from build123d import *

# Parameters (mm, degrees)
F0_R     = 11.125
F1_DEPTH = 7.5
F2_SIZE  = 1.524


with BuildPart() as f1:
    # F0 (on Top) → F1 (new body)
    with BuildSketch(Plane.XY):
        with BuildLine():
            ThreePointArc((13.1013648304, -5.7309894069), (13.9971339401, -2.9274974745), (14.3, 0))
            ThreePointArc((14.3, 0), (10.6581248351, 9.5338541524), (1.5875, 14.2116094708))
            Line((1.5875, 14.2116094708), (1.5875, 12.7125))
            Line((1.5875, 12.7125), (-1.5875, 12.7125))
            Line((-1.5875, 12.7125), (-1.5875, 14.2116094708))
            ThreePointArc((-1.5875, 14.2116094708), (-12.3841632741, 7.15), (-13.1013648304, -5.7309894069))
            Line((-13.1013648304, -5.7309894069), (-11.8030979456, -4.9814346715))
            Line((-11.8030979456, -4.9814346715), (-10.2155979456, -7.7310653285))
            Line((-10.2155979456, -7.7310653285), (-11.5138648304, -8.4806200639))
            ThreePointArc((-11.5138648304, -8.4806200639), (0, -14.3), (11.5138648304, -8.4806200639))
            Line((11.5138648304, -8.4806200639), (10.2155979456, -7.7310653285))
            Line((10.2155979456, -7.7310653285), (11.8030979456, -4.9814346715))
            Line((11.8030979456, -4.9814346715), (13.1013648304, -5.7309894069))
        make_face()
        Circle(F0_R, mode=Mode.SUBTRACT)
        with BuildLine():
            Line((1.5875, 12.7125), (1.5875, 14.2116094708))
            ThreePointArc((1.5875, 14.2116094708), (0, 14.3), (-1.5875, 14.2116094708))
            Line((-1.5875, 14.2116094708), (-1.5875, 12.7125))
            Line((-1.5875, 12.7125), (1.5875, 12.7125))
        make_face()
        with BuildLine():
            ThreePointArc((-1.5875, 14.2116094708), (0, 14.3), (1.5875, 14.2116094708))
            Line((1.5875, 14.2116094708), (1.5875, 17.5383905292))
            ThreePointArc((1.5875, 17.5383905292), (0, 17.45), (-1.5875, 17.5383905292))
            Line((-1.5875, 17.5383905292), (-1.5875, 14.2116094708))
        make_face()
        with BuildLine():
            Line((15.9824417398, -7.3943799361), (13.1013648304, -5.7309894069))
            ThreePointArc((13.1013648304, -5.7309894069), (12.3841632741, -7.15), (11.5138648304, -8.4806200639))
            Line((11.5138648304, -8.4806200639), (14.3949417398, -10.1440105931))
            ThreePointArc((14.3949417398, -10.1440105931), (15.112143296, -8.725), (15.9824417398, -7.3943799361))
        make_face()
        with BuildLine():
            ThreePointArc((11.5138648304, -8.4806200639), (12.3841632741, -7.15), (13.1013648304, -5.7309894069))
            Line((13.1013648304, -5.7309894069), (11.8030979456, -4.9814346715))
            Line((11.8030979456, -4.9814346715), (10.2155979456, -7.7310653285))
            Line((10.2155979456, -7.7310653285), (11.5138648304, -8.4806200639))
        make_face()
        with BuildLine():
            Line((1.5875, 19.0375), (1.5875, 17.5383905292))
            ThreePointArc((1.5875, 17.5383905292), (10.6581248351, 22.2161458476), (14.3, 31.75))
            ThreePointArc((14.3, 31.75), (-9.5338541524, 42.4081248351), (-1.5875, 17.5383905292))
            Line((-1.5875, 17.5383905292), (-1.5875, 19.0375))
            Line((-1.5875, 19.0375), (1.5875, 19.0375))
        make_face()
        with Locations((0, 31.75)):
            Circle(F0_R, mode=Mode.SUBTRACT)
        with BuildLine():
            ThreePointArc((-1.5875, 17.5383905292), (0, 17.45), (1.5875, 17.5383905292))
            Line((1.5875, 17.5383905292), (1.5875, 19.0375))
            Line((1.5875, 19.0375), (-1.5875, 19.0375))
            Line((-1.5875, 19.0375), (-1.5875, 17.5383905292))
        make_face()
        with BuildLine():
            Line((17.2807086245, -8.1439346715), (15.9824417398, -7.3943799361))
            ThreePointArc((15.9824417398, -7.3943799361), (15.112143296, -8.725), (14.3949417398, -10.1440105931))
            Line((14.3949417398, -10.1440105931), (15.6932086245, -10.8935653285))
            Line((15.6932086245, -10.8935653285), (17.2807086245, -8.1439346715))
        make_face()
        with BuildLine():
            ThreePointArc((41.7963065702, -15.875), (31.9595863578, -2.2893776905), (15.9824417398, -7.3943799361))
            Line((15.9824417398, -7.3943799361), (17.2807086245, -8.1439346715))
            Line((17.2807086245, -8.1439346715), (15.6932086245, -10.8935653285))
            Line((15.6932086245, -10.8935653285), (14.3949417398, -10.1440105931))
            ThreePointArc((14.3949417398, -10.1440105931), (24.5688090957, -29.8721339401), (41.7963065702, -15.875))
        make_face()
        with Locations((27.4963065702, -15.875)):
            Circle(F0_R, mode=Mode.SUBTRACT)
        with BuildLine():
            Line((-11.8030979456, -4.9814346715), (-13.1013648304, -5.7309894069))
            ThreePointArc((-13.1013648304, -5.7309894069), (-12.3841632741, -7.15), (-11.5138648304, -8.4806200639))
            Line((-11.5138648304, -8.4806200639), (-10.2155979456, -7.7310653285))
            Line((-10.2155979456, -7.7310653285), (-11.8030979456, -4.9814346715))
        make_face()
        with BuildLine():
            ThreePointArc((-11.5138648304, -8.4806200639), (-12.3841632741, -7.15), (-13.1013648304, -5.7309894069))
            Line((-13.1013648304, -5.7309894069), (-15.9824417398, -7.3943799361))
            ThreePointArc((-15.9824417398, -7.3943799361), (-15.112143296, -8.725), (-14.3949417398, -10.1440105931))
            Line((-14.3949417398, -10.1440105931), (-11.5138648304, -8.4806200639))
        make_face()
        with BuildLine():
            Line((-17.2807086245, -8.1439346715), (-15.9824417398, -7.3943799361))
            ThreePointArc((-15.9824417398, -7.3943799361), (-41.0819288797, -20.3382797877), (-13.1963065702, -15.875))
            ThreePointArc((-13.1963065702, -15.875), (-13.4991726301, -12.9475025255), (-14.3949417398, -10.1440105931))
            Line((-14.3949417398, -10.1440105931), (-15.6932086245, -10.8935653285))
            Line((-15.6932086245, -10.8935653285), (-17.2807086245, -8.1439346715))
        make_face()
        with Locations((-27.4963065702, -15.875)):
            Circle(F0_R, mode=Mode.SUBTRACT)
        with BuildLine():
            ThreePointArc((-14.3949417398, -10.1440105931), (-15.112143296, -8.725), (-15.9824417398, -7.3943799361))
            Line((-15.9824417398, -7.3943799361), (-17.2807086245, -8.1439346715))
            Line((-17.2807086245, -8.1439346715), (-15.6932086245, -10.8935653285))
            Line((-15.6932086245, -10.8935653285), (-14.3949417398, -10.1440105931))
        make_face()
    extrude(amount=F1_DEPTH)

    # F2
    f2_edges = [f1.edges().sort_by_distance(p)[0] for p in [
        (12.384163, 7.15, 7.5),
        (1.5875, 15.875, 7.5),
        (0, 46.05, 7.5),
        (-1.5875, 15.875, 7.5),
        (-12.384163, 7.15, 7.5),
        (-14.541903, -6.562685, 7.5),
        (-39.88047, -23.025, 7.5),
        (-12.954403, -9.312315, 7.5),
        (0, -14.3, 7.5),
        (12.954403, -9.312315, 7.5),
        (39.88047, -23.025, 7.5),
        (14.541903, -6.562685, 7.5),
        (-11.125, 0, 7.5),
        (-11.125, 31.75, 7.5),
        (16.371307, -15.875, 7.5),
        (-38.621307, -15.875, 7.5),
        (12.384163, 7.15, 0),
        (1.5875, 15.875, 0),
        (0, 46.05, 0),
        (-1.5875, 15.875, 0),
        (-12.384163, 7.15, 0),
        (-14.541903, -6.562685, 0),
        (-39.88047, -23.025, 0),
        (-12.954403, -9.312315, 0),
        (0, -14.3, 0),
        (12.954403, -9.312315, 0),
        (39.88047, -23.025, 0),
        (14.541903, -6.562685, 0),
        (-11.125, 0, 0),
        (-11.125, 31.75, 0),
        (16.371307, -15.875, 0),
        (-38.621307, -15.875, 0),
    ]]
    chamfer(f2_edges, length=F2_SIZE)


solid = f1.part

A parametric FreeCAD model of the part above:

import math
import FreeCAD as App
import Part
import Sketcher
Q = App.Units.Quantity


def edges_at(feature, points):
    """Names of the edges that pass closest to the given points."""
    edges = feature.Shape.Edges
    near = lambda p: min(range(len(edges)), key=lambda i: edges[i].distToShape(Part.Vertex(*p))[0])
    return sorted({f"Edge{near(p) + 1}" for p in points})

doc = App.newDocument("Part")
body = doc.addObject("PartDesign::Body", "Body")

sketch1 = body.newObject("Sketcher::SketchObject", "Sketch")
sketch1.AttachmentSupport = (doc.getObject("XY_Plane"), [""])
sketch1.MapMode = "FlatFace"
sketch1.addGeometry(Part.ArcOfCircle(Part.Circle(App.Vector(0, 0, 0), App.Vector(0, 0, 1), 14.3), math.radians(-24), math.radians(0)), False)
sketch1.addGeometry(Part.ArcOfCircle(Part.Circle(App.Vector(0, 0, 0), App.Vector(0, 0, 1), 14.3), math.radians(0), math.radians(84)), False)
sketch1.addGeometry(Part.LineSegment(App.Vector(1.6, 14.2, 0), App.Vector(1.6, 17.5, 0)), False)
sketch1.addGeometry(Part.ArcOfCircle(Part.Circle(App.Vector(0, 31.8, 0), App.Vector(0, 0, 1), 14.3), math.radians(-84), math.radians(0)), False)
sketch1.addGeometry(Part.ArcOfCircle(Part.Circle(App.Vector(0, 31.8, 0), App.Vector(0, 0, 1), 14.3), math.radians(0), math.radians(264)), False)
sketch1.addGeometry(Part.LineSegment(App.Vector(-1.6, 17.5, 0), App.Vector(-1.6, 14.2, 0)), False)
sketch1.addGeometry(Part.ArcOfCircle(Part.Circle(App.Vector(0, 0, 0), App.Vector(0, 0, 1), 14.3), math.radians(96), math.radians(204)), False)
sketch1.addGeometry(Part.LineSegment(App.Vector(-13.1, -5.7, 0), App.Vector(-16, -7.4, 0)), False)
sketch1.addGeometry(Part.ArcOfCircle(Part.Circle(App.Vector(-27.5, -15.9, 0), App.Vector(0, 0, 1), 14.3), math.radians(36), math.radians(360)), False)
sketch1.addGeometry(Part.ArcOfCircle(Part.Circle(App.Vector(-27.5, -15.9, 0), App.Vector(0, 0, 1), 14.3), math.radians(0), math.radians(24)), False)
sketch1.addGeometry(Part.LineSegment(App.Vector(-14.4, -10.1, 0), App.Vector(-11.5, -8.5, 0)), False)
sketch1.addGeometry(Part.ArcOfCircle(Part.Circle(App.Vector(0, 0, 0), App.Vector(0, 0, 1), 14.3), math.radians(-144), math.radians(-36)), False)
sketch1.addGeometry(Part.LineSegment(App.Vector(11.5, -8.5, 0), App.Vector(14.4, -10.1, 0)), False)
sketch1.addGeometry(Part.ArcOfCircle(Part.Circle(App.Vector(27.5, -15.9, 0), App.Vector(0, 0, 1), 14.3), math.radians(156), math.radians(360)), False)
sketch1.addGeometry(Part.ArcOfCircle(Part.Circle(App.Vector(27.5, -15.9, 0), App.Vector(0, 0, 1), 14.3), math.radians(0), math.radians(144)), False)
sketch1.addGeometry(Part.LineSegment(App.Vector(16, -7.4, 0), App.Vector(13.1, -5.7, 0)), False)
sketch1.addGeometry(Part.Circle(App.Vector(0, 0, 0), App.Vector(0, 0, 1), 11.1), False)
sketch1.addGeometry(Part.Circle(App.Vector(27.5, -15.9, 0), App.Vector(0, 0, 1), 11.1), False)
sketch1.addGeometry(Part.Circle(App.Vector(0, 31.8, 0), App.Vector(0, 0, 1), 11.1), False)
sketch1.addGeometry(Part.Circle(App.Vector(-27.5, -15.9, 0), App.Vector(0, 0, 1), 11.1), False)
sketch1.addConstraint(Sketcher.Constraint("Tangent", 0, 2, 1, 1))
sketch1.addConstraint(Sketcher.Constraint("Coincident", 1, 2, 2, 1))
sketch1.addConstraint(Sketcher.Constraint("Coincident", 2, 2, 3, 1))
sketch1.addConstraint(Sketcher.Constraint("Tangent", 3, 2, 4, 1))
sketch1.addConstraint(Sketcher.Constraint("Coincident", 4, 2, 5, 1))
sketch1.addConstraint(Sketcher.Constraint("Coincident", 5, 2, 6, 1))
sketch1.addConstraint(Sketcher.Constraint("Coincident", 6, 2, 7, 1))
sketch1.addConstraint(Sketcher.Constraint("Coincident", 7, 2, 8, 1))
sketch1.addConstraint(Sketcher.Constraint("Tangent", 8, 2, 9, 1))
sketch1.addConstraint(Sketcher.Constraint("Coincident", 9, 2, 10, 1))
sketch1.addConstraint(Sketcher.Constraint("Coincident", 10, 2, 11, 1))
sketch1.addConstraint(Sketcher.Constraint("Coincident", 11, 2, 12, 1))
sketch1.addConstraint(Sketcher.Constraint("Coincident", 12, 2, 13, 1))
sketch1.addConstraint(Sketcher.Constraint("Tangent", 13, 2, 14, 1))
sketch1.addConstraint(Sketcher.Constraint("Coincident", 14, 2, 15, 1))
sketch1.addConstraint(Sketcher.Constraint("Coincident", 15, 2, 0, 1))
sketch1.addConstraint(Sketcher.Constraint("Vertical", 2))
sketch1.addConstraint(Sketcher.Constraint("Vertical", 5))
sketch1.addConstraint(Sketcher.Constraint("Coincident", 0, 3, -1, 1))
sketch1.addConstraint(Sketcher.Constraint("Coincident", 6, 3, -1, 1))
sketch1.addConstraint(Sketcher.Constraint("Coincident", 11, 3, -1, 1))
sketch1.addConstraint(Sketcher.Constraint("Coincident", 16, 3, -1, 1))
sketch1.addConstraint(Sketcher.Constraint("Coincident", 17, 3, 13, 3))
sketch1.addConstraint(Sketcher.Constraint("Coincident", 18, 3, 3, 3))
sketch1.addConstraint(Sketcher.Constraint("Coincident", 19, 3, 8, 3))
sketch1.addConstraint(Sketcher.Constraint("Equal", 0, 1))
sketch1.addConstraint(Sketcher.Constraint("Equal", 1, 3))
sketch1.addConstraint(Sketcher.Constraint("Equal", 3, 4))
sketch1.addConstraint(Sketcher.Constraint("Equal", 4, 6))
sketch1.addConstraint(Sketcher.Constraint("Equal", 6, 8))
sketch1.addConstraint(Sketcher.Constraint("Equal", 8, 9))
sketch1.addConstraint(Sketcher.Constraint("Equal", 9, 11))
sketch1.addConstraint(Sketcher.Constraint("Equal", 11, 13))
sketch1.addConstraint(Sketcher.Constraint("Equal", 13, 14))
sketch1.addConstraint(Sketcher.Constraint("Equal", 16, 17))
sketch1.addConstraint(Sketcher.Constraint("Equal", 17, 18))
sketch1.addConstraint(Sketcher.Constraint("Equal", 18, 19))
sketch1.addConstraint(Sketcher.Constraint("Symmetric", 8, 3, 13, 3, -2))
sketch1.addConstraint(Sketcher.Constraint("Symmetric", 2, 2, 4, 2, -2))
sketch1.addConstraint(Sketcher.Constraint("PointOnObject", 0, 2, -1))
sketch1.addConstraint(Sketcher.Constraint("Parallel", 7, 10))
sketch1.addConstraint(Sketcher.Constraint("Parallel", 12, 15))
sketch1.addConstraint(Sketcher.Constraint("Horizontal", 18, 3, 3, 2))
sketch1.addConstraint(Sketcher.Constraint("Horizontal", 19, 3, 8, 2))
sketch1.addConstraint(Sketcher.Constraint("Horizontal", 10, 2, 11, 2))
sketch1.addConstraint(Sketcher.Constraint("Horizontal", 9, 2, 12, 2))
sketch1.addConstraint(Sketcher.Constraint("Horizontal", 8, 2, 13, 2))
sketch1.addConstraint(Sketcher.Constraint("Horizontal", 7, 2, 14, 2))
sketch1.addConstraint(Sketcher.Constraint("Equal", 7, 10))
sketch1.addConstraint(Sketcher.Constraint("Radius", 0, Q("14.3 mm")))
sketch1.addConstraint(Sketcher.Constraint("Diameter", 16, Q("22.25 mm")))
sketch1.addConstraint(Sketcher.Constraint("Angle", 7, Q("-150 deg")))
sketch1.addConstraint(Sketcher.Constraint("DistanceY", -1, 1, 3, 3, Q("31.75 mm")))
sketch1.addConstraint(Sketcher.Constraint("DistanceY", 8, 3, -1, 1, Q("15.875 mm")))
sketch1.addConstraint(Sketcher.Constraint("DistanceX", 4, 2, 2, 2, Q("3.175 mm")))
sketch1.addConstraint(Sketcher.Constraint("DistanceX", 7, 2, 9, 2, Q("1.5875 mm")))
sketch1.addConstraint(Sketcher.Constraint("Distance", 7, Q("3.326781 mm")))
pad1 = body.newObject("PartDesign::Pad", "Pad")
pad1.Profile = sketch1
pad1.Length = 7.5
doc.recompute()

chamfer = body.newObject("PartDesign::Chamfer", "Chamfer")
chamfer.Base = (pad1, edges_at(pad1, [
    (10.658, 9.534, 7.5),
    (1.587, 15.875, 7.5),
    (-9.534, 42.408, 7.5),
    (-1.587, 15.875, 7.5),
    (-12.384, 7.15, 7.5),
    (-14.542, -6.563, 7.5),
    (-41.082, -20.338, 7.5),
    (-12.954, -9.312, 7.5),
    (0, -14.3, 7.5),
    (12.954, -9.312, 7.5),
    (24.569, -29.872, 7.5),
    (14.542, -6.563, 7.5),
    (-11.125, 0, 7.5),
    (-11.125, 31.75, 7.5),
    (16.371, -15.875, 7.5),
    (-38.621, -15.875, 7.5),
    (10.658, 9.534, 0),
    (1.587, 15.875, 0),
    (-9.534, 42.408, 0),
    (-1.587, 15.875, 0),
    (-12.384, 7.15, 0),
    (-14.542, -6.563, 0),
    (-41.082, -20.338, 0),
    (-12.954, -9.312, 0),
    (0, -14.3, 0),
    (12.954, -9.312, 0),
    (24.569, -29.872, 0),
    (14.542, -6.563, 0),
    (-11.125, 0, 0),
    (-11.125, 31.75, 0),
    (16.371, -15.875, 0),
    (-38.621, -15.875, 0),
]))
chamfer.Size = 1.524

doc.recompute()
